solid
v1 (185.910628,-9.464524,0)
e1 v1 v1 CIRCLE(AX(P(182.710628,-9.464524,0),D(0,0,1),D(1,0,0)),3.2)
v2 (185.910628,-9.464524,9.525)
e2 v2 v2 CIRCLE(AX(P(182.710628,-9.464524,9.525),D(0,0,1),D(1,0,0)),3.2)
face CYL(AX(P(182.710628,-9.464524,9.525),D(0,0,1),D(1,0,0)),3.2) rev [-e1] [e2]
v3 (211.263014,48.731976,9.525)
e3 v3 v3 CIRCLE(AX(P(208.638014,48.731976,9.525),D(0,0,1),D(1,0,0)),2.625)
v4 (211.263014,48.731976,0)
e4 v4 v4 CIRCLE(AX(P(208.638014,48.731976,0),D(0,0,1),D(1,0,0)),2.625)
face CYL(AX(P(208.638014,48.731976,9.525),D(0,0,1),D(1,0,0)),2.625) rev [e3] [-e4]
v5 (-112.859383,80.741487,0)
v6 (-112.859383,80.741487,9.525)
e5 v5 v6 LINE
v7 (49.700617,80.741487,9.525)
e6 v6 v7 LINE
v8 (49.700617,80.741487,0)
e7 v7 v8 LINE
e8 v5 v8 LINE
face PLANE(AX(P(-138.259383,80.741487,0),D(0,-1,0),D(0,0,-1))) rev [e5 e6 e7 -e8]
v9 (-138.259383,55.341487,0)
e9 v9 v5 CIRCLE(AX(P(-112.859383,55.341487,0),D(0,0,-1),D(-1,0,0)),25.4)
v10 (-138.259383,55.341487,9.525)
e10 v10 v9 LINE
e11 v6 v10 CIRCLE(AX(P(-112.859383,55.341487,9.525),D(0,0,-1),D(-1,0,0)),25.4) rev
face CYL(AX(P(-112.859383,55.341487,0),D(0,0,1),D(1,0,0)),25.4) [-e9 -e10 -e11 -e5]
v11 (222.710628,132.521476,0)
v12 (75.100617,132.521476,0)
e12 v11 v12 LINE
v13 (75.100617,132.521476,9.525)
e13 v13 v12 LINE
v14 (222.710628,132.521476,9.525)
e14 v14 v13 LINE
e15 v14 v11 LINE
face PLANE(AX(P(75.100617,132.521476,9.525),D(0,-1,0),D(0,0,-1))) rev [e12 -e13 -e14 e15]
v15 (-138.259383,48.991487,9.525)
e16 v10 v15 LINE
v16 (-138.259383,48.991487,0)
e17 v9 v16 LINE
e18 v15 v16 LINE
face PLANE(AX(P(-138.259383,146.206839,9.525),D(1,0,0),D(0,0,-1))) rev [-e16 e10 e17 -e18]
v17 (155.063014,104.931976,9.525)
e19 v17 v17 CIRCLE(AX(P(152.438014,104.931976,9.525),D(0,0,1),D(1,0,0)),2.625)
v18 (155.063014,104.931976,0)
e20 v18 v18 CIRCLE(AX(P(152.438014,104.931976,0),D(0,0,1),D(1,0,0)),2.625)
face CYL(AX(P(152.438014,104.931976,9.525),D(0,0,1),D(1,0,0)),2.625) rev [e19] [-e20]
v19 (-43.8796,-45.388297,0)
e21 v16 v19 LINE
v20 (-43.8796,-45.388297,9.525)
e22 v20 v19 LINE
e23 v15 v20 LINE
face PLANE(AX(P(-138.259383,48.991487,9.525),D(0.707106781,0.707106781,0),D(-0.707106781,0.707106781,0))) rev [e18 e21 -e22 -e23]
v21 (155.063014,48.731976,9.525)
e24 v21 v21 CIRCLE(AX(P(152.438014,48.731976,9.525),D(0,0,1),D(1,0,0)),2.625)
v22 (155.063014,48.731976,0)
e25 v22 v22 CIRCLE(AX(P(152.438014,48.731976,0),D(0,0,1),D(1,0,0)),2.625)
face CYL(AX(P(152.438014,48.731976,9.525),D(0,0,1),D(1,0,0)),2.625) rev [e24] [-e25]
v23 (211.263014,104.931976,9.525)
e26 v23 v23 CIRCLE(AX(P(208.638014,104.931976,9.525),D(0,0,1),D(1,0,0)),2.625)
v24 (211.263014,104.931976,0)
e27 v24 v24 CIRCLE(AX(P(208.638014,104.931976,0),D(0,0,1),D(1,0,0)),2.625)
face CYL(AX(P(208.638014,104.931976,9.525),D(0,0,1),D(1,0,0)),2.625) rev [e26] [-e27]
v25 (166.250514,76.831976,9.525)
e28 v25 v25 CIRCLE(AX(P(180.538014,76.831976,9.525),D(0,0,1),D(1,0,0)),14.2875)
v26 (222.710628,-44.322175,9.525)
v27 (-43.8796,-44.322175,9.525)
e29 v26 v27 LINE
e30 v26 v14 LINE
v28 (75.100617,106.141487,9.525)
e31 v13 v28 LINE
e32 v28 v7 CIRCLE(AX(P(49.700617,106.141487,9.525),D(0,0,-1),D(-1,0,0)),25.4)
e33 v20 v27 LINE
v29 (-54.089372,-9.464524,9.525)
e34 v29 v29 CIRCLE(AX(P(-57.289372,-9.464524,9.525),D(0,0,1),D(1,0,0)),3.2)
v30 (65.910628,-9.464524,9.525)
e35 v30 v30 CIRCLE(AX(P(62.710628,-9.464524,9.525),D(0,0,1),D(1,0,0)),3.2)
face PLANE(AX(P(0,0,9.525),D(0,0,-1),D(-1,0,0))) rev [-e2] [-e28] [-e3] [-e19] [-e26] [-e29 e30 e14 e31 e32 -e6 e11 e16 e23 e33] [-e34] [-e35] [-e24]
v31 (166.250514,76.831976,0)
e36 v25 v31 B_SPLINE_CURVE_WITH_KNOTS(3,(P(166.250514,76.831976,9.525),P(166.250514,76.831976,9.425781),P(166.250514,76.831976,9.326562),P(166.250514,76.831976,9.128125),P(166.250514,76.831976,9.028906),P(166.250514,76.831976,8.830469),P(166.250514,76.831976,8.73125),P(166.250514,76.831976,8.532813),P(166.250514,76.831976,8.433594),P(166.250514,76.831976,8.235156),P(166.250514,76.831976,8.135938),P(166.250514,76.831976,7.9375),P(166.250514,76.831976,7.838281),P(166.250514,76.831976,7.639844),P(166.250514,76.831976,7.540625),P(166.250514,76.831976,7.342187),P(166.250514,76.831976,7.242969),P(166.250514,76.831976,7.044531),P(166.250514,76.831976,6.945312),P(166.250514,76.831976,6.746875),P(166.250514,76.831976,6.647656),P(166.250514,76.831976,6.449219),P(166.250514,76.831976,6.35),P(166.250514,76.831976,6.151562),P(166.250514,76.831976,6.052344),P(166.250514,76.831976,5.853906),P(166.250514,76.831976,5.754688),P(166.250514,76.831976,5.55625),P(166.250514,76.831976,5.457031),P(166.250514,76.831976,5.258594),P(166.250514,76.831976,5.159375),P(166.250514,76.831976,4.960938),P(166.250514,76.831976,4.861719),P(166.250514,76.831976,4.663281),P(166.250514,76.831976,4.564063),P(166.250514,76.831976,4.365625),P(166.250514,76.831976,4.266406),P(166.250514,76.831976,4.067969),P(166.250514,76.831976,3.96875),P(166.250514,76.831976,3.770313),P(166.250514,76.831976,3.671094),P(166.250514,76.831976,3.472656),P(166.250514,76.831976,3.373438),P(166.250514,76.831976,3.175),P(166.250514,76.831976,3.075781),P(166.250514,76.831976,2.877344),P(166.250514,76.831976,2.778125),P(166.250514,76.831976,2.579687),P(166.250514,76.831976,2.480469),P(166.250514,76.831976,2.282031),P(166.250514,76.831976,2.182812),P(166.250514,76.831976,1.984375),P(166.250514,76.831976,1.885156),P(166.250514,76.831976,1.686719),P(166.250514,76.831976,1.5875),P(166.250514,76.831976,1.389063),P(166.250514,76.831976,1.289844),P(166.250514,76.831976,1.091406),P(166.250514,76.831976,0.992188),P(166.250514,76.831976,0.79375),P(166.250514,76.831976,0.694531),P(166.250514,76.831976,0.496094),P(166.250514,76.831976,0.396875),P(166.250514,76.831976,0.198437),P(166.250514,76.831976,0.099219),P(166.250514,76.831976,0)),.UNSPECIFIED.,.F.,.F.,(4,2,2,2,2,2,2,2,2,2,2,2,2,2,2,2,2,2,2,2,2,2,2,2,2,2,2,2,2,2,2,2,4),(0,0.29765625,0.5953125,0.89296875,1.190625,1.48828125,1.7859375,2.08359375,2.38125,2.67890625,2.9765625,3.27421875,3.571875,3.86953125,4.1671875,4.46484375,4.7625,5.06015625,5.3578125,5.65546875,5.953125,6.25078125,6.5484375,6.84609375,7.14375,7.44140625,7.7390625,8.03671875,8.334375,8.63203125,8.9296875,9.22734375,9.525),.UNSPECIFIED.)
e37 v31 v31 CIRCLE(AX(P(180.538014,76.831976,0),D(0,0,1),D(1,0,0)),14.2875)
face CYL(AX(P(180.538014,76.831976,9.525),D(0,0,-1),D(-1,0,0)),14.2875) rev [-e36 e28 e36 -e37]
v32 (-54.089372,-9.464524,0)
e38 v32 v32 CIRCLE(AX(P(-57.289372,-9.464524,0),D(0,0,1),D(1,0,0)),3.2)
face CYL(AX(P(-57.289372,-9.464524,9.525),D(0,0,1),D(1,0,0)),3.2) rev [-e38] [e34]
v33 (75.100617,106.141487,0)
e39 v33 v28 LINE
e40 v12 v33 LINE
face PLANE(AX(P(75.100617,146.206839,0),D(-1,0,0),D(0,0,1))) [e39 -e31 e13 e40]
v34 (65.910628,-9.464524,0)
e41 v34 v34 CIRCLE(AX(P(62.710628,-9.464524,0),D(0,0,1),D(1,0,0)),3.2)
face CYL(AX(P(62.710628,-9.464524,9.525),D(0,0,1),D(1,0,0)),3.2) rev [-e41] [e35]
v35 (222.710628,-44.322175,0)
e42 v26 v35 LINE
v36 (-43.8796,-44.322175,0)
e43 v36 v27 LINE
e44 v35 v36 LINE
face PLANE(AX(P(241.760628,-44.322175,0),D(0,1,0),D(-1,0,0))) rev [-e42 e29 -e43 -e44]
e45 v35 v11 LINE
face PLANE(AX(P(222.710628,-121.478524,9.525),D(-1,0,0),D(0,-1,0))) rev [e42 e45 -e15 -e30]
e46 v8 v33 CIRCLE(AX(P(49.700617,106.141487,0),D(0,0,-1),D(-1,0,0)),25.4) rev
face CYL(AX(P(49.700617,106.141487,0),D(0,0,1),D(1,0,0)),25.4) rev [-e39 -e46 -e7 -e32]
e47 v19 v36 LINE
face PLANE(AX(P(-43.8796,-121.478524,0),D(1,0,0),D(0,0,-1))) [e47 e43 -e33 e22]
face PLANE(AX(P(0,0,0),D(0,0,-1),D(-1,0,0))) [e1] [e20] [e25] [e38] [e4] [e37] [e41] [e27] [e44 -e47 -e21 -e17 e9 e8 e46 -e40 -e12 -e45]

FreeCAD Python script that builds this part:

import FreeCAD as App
import Part
import Sketcher
Q = App.Units.Quantity


def edges_at(feature, points):
    """Names of the edges that pass closest to the given points."""
    edges = feature.Shape.Edges
    near = lambda p: min(range(len(edges)), key=lambda i: edges[i].distToShape(Part.Vertex(*p))[0])
    return sorted({f"Edge{near(p) + 1}" for p in points})

doc = App.newDocument("Part")
body = doc.addObject("PartDesign::Body", "Body")

sketch1 = body.newObject("Sketcher::SketchObject", "Sketch")
sketch1.AttachmentSupport = (doc.getObject("XY_Plane"), [""])
sketch1.MapMode = "FlatFace"
sketch1.addGeometry([
    Part.LineSegment(App.Vector(-138, 49, 0), App.Vector(32, -121, 0)),
    Part.LineSegment(App.Vector(32, -121, 0), App.Vector(223, -121, 0)),
    Part.LineSegment(App.Vector(223, -121, 0), App.Vector(223, 146, 0)),
    Part.LineSegment(App.Vector(223, 146, 0), App.Vector(-138, 146, 0)),
    Part.LineSegment(App.Vector(-138, 146, 0), App.Vector(-138, 49, 0)),
    Part.Circle(App.Vector(181, 77, 0), App.Vector(0, 0, 1), 14),
], False)
sketch1.addConstraint([
    Sketcher.Constraint("Coincident", 0, 2, 1, 1),
    Sketcher.Constraint("Coincident", 1, 2, 2, 1),
    Sketcher.Constraint("Coincident", 2, 2, 3, 1),
    Sketcher.Constraint("Coincident", 3, 2, 4, 1),
    Sketcher.Constraint("Coincident", 4, 2, 0, 1),
    Sketcher.Constraint("Horizontal", 1),
    Sketcher.Constraint("Vertical", 2),
    Sketcher.Constraint("Horizontal", 3),
    Sketcher.Constraint("Vertical", 4),
    Sketcher.Constraint("Diameter", 5, Q("1.125 in")),
    Sketcher.Constraint("DistanceX", 1, 1, 1, 2, Q("7.5 in")),
    Sketcher.Constraint("Angle", 0, Q("-45 deg")),
    Sketcher.Constraint("DistanceY", 0, 2, 5, 3, Q("7.8075 in")),
    Sketcher.Constraint("Distance", 0, Q("241.081002 mm")),
    Sketcher.Constraint("DistanceY", 2, 1, 2, 2, Q("267.685363 mm")),
    Sketcher.Constraint("DistanceY", -1, 1, 2, 2, Q("146.206839 mm")),
    Sketcher.Constraint("DistanceX", -1, 1, 5, 3, Q("180.538014 mm")),
    Sketcher.Constraint("DistanceX", -1, 1, 0, 2, Q("32.210628 mm")),
])
pad1 = body.newObject("PartDesign::Pad", "Pad")
pad1.Profile = sketch1
pad1.Length = Q("0.375 in")

sketch2 = body.newObject("Sketcher::SketchObject", "Sketch001")
sketch2.AttachmentSupport = (doc.getObject("XY_Plane"), [""])
sketch2.MapMode = "FlatFace"
sketch2.AttachmentOffset = App.Placement(App.Vector(0, 0, 0.375 * 25.4), App.Rotation())
sketch2.addGeometry([
    Part.LineSegment(App.Vector(-44, -44, 0), App.Vector(-44, -121, 0)),
    Part.LineSegment(App.Vector(-44, -121, 0), App.Vector(242, -121, 0)),
    Part.LineSegment(App.Vector(242, -121, 0), App.Vector(242, -44, 0)),
    Part.LineSegment(App.Vector(242, -44, 0), App.Vector(-44, -44, 0)),
], False)
sketch2.addConstraint([
    Sketcher.Constraint("Coincident", 0, 2, 1, 1),
    Sketcher.Constraint("Coincident", 1, 2, 2, 1),
    Sketcher.Constraint("Coincident", 2, 2, 3, 1),
    Sketcher.Constraint("Coincident", 3, 2, 0, 1),
    Sketcher.Constraint("Vertical", 0),
    Sketcher.Constraint("Horizontal", 1),
    Sketcher.Constraint("Vertical", 2),
    Sketcher.Constraint("Horizontal", 3),
    Sketcher.Constraint("DistanceY", 0, 2, 0, 1, Q("77.15635 mm")),
    Sketcher.Constraint("DistanceX", 0, 2, -1, 1, Q("43.8796 mm")),
    Sketcher.Constraint("DistanceX", 1, 1, 1, 2, Q("285.640228 mm")),
    Sketcher.Constraint("DistanceY", 0, 2, -1, 1, Q("121.478524 mm")),
])
pocket1 = body.newObject("PartDesign::Pocket", "Pocket")
pocket1.Profile = sketch2
pocket1.Type = "ThroughAll"

sketch3 = body.newObject("Sketcher::SketchObject", "Sketch002")
sketch3.AttachmentSupport = (doc.getObject("XY_Plane"), [""])
sketch3.MapMode = "FlatFace"
sketch3.AttachmentOffset = App.Placement(App.Vector(0, 0, 0.375 * 25.4), App.Rotation())
sketch3.addGeometry([
    Part.LineSegment(App.Vector(-138, 146, 0), App.Vector(-138, 81, 0)),
    Part.LineSegment(App.Vector(-138, 81, 0), App.Vector(75, 81, 0)),
    Part.LineSegment(App.Vector(75, 81, 0), App.Vector(75, 146, 0)),
    Part.LineSegment(App.Vector(75, 146, 0), App.Vector(-138, 146, 0)),
], False)
sketch3.addConstraint([
    Sketcher.Constraint("Coincident", 0, 2, 1, 1),
    Sketcher.Constraint("Coincident", 1, 2, 2, 1),
    Sketcher.Constraint("Coincident", 2, 2, 3, 1),
    Sketcher.Constraint("Coincident", 3, 2, 0, 1),
    Sketcher.Constraint("Vertical", 0),
    Sketcher.Constraint("Horizontal", 1),
    Sketcher.Constraint("Vertical", 2),
    Sketcher.Constraint("Horizontal", 3),
    Sketcher.Constraint("DistanceX", 1, 1, 1, 2, Q("8.4 in")),
    Sketcher.Constraint("DistanceY", 0, 2, 0, 1, Q("65.465352 mm")),
    Sketcher.Constraint("DistanceY", -1, 1, 2, 2, Q("146.206839 mm")),
    Sketcher.Constraint("DistanceX", 0, 2, -1, 1, Q("138.259383 mm")),
])
pocket2 = body.newObject("PartDesign::Pocket", "Pocket001")
pocket2.Profile = sketch3
pocket2.Type = "ThroughAll"
doc.recompute()

fillet = body.newObject("PartDesign::Fillet", "Fillet")
fillet.Base = (pocket2, edges_at(pocket2, [(-138.259, 80.741, 4.763), (75.101, 80.741, 4.763)]))
fillet.Radius = Q("1 in")

sketch4 = body.newObject("Sketcher::SketchObject", "Sketch003")
sketch4.AttachmentSupport = (doc.getObject("YZ_Plane"), [""])
sketch4.MapMode = "FlatFace"
sketch4.AttachmentOffset = App.Placement(App.Vector(0, 0, 222.710628), App.Rotation())
sketch4.addGeometry([
    Part.LineSegment(App.Vector(146.2, 9.5, 0), App.Vector(145.2, 9.5, 0)),
    Part.LineSegment(App.Vector(145.2, 9.5, 0), App.Vector(145.2, 0, 0)),
    Part.LineSegment(App.Vector(145.2, 0, 0), App.Vector(146.2, 0, 0)),
    Part.LineSegment(App.Vector(146.2, 0, 0), App.Vector(146.2, 9.5, 0)),
], False)
sketch4.addConstraint([
    Sketcher.Constraint("Coincident", 0, 2, 1, 1),
    Sketcher.Constraint("Coincident", 1, 2, 2, 1),
    Sketcher.Constraint("Coincident", 2, 2, 3, 1),
    Sketcher.Constraint("Coincident", 3, 2, 0, 1),
    Sketcher.Constraint("Horizontal", 0),
    Sketcher.Constraint("Vertical", 1),
    Sketcher.Constraint("Horizontal", 2),
    Sketcher.Constraint("Vertical", 3),
    Sketcher.Constraint("PointOnObject", 1, 2, -1),
    Sketcher.Constraint("DistanceY", 1, 2, 1, 1, Q("0.375 in")),
    Sketcher.Constraint("DistanceX", 0, 2, 0, 1, Q("0.985363 mm")),
    Sketcher.Constraint("DistanceX", -1, 1, 2, 2, Q("146.206839 mm")),
])
pocket3 = body.newObject("PartDesign::Pocket", "Pocket002")
pocket3.Profile = sketch4
pocket3.Type = "ThroughAll"

sketch5 = body.newObject("Sketcher::SketchObject", "Sketch004")
sketch5.AttachmentSupport = (doc.getObject("XY_Plane"), [""])
sketch5.MapMode = "FlatFace"
sketch5.addGeometry([
    Part.LineSegment(App.Vector(223, 145, 0), App.Vector(223, 133, 0)),
    Part.LineSegment(App.Vector(223, 133, 0), App.Vector(75, 133, 0)),
    Part.LineSegment(App.Vector(75, 133, 0), App.Vector(75, 145, 0)),
    Part.LineSegment(App.Vector(75, 145, 0), App.Vector(223, 145, 0)),
], False)
sketch5.addConstraint([
    Sketcher.Constraint("Coincident", 0, 2, 1, 1),
    Sketcher.Constraint("Coincident", 1, 2, 2, 1),
    Sketcher.Constraint("Coincident", 2, 2, 3, 1),
    Sketcher.Constraint("Coincident", 3, 2, 0, 1),
    Sketcher.Constraint("Vertical", 0),
    Sketcher.Constraint("Horizontal", 1),
    Sketcher.Constraint("Vertical", 2),
    Sketcher.Constraint("Horizontal", 3),
    Sketcher.Constraint("DistanceY", 0, 2, 0, 1, Q("0.5 in")),
    Sketcher.Constraint("DistanceX", 1, 2, 1, 1, Q("147.610011 mm")),
    Sketcher.Constraint("DistanceX", -1, 1, 0, 2, Q("222.710628 mm")),
    Sketcher.Constraint("DistanceY", -1, 1, 0, 2, Q("132.521476 mm")),
])
pocket4 = body.newObject("PartDesign::Pocket", "Pocket003")
pocket4.Profile = sketch5
pocket4.Type = "ThroughAll"
pocket4.Reversed = True

sketch6 = body.newObject("Sketcher::SketchObject", "Sketch005")
sketch6.AttachmentSupport = (doc.getObject("XY_Plane"), [""])
sketch6.MapMode = "FlatFace"
sketch6.AttachmentOffset = App.Placement(App.Vector(0, 0, 0.375 * 25.4), App.Rotation())
sketch6.addGeometry([
    Part.Circle(App.Vector(208.6, 104.9, 0), App.Vector(0, 0, 1), 2.6),
    Part.Circle(App.Vector(152.4, 104.9, 0), App.Vector(0, 0, 1), 2.6),
    Part.Circle(App.Vector(152.4, 48.7, 0), App.Vector(0, 0, 1), 2.6),
    Part.Circle(App.Vector(208.6, 48.7, 0), App.Vector(0, 0, 1), 2.6),
], False)
sketch6.addConstraint([
    Sketcher.Constraint("Equal", 0, 1),
    Sketcher.Constraint("Equal", 1, 2),
    Sketcher.Constraint("Equal", 2, 3),
    Sketcher.Constraint("Horizontal", 0, 3, 1, 3),
    Sketcher.Constraint("Horizontal", 2, 3, 3, 3),
    Sketcher.Constraint("Vertical", 1, 3, 2, 3),
    Sketcher.Constraint("Vertical", 0, 3, 3, 3),
    Sketcher.Constraint("Diameter", 0, Q("5.25 mm")),
    Sketcher.Constraint("DistanceX", 1, 3, 0, 3, Q("56.2 mm")),
    Sketcher.Constraint("DistanceY", 2, 3, 1, 3, Q("56.2 mm")),
    Sketcher.Constraint("DistanceX", -1, 1, 0, 3, Q("208.638014 mm")),
    Sketcher.Constraint("DistanceY", -1, 1, 0, 3, Q("104.931976 mm")),
])
doc.recompute()
hole = body.newObject("PartDesign::Hole", "Hole")
hole.Profile = sketch6
hole.ThreadType = "None"
hole.Diameter = 5.25
hole.DepthType = "ThroughAll"

sketch7 = body.newObject("Sketcher::SketchObject", "Sketch006")
sketch7.AttachmentSupport = (doc.getObject("XY_Plane"), [""])
sketch7.MapMode = "FlatFace"
sketch7.AttachmentOffset = App.Placement(App.Vector(0, 0, 0.375 * 25.4), App.Rotation())
sketch7.addGeometry([
    Part.Circle(App.Vector(-57.3, -9.5, 0), App.Vector(0, 0, 1), 3.2),
    Part.Circle(App.Vector(62.7, -9.5, 0), App.Vector(0, 0, 1), 3.2),
    Part.Circle(App.Vector(182.7, -9.5, 0), App.Vector(0, 0, 1), 3.2),
], False)
sketch7.addConstraint([
    Sketcher.Constraint("Equal", 0, 1),
    Sketcher.Constraint("Equal", 1, 2),
    Sketcher.Constraint("Horizontal", 0, 3, 1, 3),
    Sketcher.Constraint("Horizontal", 1, 3, 2, 3),
    Sketcher.Constraint("Diameter", 0, Q("6.4 mm")),
    Sketcher.Constraint("DistanceX", 0, 3, 1, 3, Q("120 mm")),
    Sketcher.Constraint("DistanceX", 1, 3, 2, 3, Q("120 mm")),
    Sketcher.Constraint("DistanceX", 0, 3, -1, 1, Q("57.289372 mm")),
    Sketcher.Constraint("DistanceY", 0, 3, -1, 1, Q("9.464524 mm")),
])
doc.recompute()
hole2 = body.newObject("PartDesign::Hole", "Hole001")
hole2.Profile = sketch7
hole2.ThreadType = "None"
hole2.Diameter = 6.4
hole2.DepthType = "ThroughAll"

doc.recompute()
